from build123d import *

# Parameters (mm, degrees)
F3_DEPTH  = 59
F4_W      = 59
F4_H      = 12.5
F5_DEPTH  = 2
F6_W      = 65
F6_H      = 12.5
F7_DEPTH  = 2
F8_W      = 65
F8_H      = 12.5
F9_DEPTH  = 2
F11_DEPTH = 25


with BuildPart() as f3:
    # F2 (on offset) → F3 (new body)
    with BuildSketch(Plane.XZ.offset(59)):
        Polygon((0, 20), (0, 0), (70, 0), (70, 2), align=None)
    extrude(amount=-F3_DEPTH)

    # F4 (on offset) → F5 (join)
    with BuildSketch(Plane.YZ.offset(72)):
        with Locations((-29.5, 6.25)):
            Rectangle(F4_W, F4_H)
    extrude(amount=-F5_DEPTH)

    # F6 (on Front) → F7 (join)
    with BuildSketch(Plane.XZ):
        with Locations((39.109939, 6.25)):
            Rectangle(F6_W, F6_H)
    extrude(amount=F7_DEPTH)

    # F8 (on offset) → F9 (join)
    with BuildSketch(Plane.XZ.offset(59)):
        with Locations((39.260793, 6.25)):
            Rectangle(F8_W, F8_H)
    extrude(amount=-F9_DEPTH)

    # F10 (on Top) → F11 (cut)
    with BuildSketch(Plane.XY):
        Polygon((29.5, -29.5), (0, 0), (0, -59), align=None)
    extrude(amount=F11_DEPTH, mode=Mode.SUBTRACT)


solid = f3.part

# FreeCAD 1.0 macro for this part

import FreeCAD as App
import Part
import Sketcher

doc = App.newDocument("Part")
body = doc.addObject("PartDesign::Body", "Body")

# Sketch on XZ plane
sketch1 = body.newObject("Sketcher::SketchObject", "Sketch")
sketch1.AttachmentSupport = (doc.getObject("XZ_Plane"), [""])
sketch1.MapMode = "FlatFace"
sketch1.AttachmentOffset = App.Placement(App.Vector(0, 0, 59), App.Rotation())
sketch1.addGeometry([
    Part.LineSegment(App.Vector(0, 20, 0), App.Vector(0, 0, 0)),
    Part.LineSegment(App.Vector(0, 0, 0), App.Vector(70, 0, 0)),
    Part.LineSegment(App.Vector(70, 0, 0), App.Vector(70, 2, 0)),
    Part.LineSegment(App.Vector(70, 2, 0), App.Vector(0, 20, 0)),
], False)
sketch1.addConstraint([
    Sketcher.Constraint("Coincident", 0, 2, 1, 1),
    Sketcher.Constraint("Coincident", 1, 2, 2, 1),
    Sketcher.Constraint("Coincident", 2, 2, 3, 1),
    Sketcher.Constraint("Coincident", 3, 2, 0, 1),
    Sketcher.Constraint("Vertical", 0),
    Sketcher.Constraint("Horizontal", 1),
    Sketcher.Constraint("Vertical", 2),
    Sketcher.Constraint("Coincident", 0, 2, -1, 1),
    Sketcher.Constraint("DistanceX", 1, 1, 1, 2, 70.0),
    Sketcher.Constraint("DistanceY", 0, 2, 0, 1, 20.0),
    Sketcher.Constraint("DistanceY", 2, 1, 2, 2, 2.0),
])
pad1 = body.newObject("PartDesign::Pad", "Pad")
pad1.Profile = sketch1
pad1.Length = 59
pad1.Reversed = True

# Sketch on YZ plane
sketch2 = body.newObject("Sketcher::SketchObject", "Sketch001")
sketch2.AttachmentSupport = (doc.getObject("YZ_Plane"), [""])
sketch2.MapMode = "FlatFace"
sketch2.AttachmentOffset = App.Placement(App.Vector(0, 0, 72), App.Rotation())
sketch2.addGeometry([
    Part.LineSegment(App.Vector(-59, 12, 0), App.Vector(-59, 0, 0)),
    Part.LineSegment(App.Vector(-59, 0, 0), App.Vector(0, 0, 0)),
    Part.LineSegment(App.Vector(0, 0, 0), App.Vector(0, 12, 0)),
    Part.LineSegment(App.Vector(0, 12, 0), App.Vector(-59, 12, 0)),
], False)
sketch2.addConstraint([
    Sketcher.Constraint("Coincident", 0, 2, 1, 1),
    Sketcher.Constraint("Coincident", 1, 2, 2, 1),
    Sketcher.Constraint("Coincident", 2, 2, 3, 1),
    Sketcher.Constraint("Coincident", 3, 2, 0, 1),
    Sketcher.Constraint("Vertical", 0),
    Sketcher.Constraint("Horizontal", 1),
    Sketcher.Constraint("Vertical", 2),
    Sketcher.Constraint("Horizontal", 3),
    Sketcher.Constraint("Coincident", 1, 2, -1, 1),
    Sketcher.Constraint("DistanceX", 1, 1, 1, 2, 59.0),
    Sketcher.Constraint("DistanceY", 0, 2, 0, 1, 12.5),
])
pad2 = body.newObject("PartDesign::Pad", "Pad001")
pad2.Profile = sketch2
pad2.Length = 2
pad2.Reversed = True

# Sketch on XZ plane
sketch3 = body.newObject("Sketcher::SketchObject", "Sketch002")
sketch3.AttachmentSupport = (doc.getObject("XZ_Plane"), [""])
sketch3.MapMode = "FlatFace"
sketch3.addGeometry([
    Part.LineSegment(App.Vector(7, 12, 0), App.Vector(7, 0, 0)),
    Part.LineSegment(App.Vector(7, 0, 0), App.Vector(72, 0, 0)),
    Part.LineSegment(App.Vector(72, 0, 0), App.Vector(72, 12, 0)),
    Part.LineSegment(App.Vector(72, 12, 0), App.Vector(7, 12, 0)),
], False)
sketch3.addConstraint([
    Sketcher.Constraint("Coincident", 0, 2, 1, 1),
    Sketcher.Constraint("Coincident", 1, 2, 2, 1),
    Sketcher.Constraint("Coincident", 2, 2, 3, 1),
    Sketcher.Constraint("Coincident", 3, 2, 0, 1),
    Sketcher.Constraint("Vertical", 0),
    Sketcher.Constraint("Horizontal", 1),
    Sketcher.Constraint("Vertical", 2),
    Sketcher.Constraint("Horizontal", 3),
    Sketcher.Constraint("PointOnObject", 0, 2, -1),
    Sketcher.Constraint("DistanceX", 1, 1, 1, 2, 65.0),
    Sketcher.Constraint("DistanceY", 0, 2, 0, 1, 12.5),
    Sketcher.Constraint("DistanceX", -1, 1, 0, 2, 6.609939),
])
pad3 = body.newObject("PartDesign::Pad", "Pad002")
pad3.Profile = sketch3
pad3.Length = 2

# Sketch on XZ plane
sketch4 = body.newObject("Sketcher::SketchObject", "Sketch003")
sketch4.AttachmentSupport = (doc.getObject("XZ_Plane"), [""])
sketch4.MapMode = "FlatFace"
sketch4.AttachmentOffset = App.Placement(App.Vector(0, 0, 59), App.Rotation())
sketch4.addGeometry([
    Part.LineSegment(App.Vector(7, 12, 0), App.Vector(7, 0, 0)),
    Part.LineSegment(App.Vector(7, 0, 0), App.Vector(72, 0, 0)),
    Part.LineSegment(App.Vector(72, 0, 0), App.Vector(72, 12, 0)),
    Part.LineSegment(App.Vector(72, 12, 0), App.Vector(7, 12, 0)),
], False)
sketch4.addConstraint([
    Sketcher.Constraint("Coincident", 0, 2, 1, 1),
    Sketcher.Constraint("Coincident", 1, 2, 2, 1),
    Sketcher.Constraint("Coincident", 2, 2, 3, 1),
    Sketcher.Constraint("Coincident", 3, 2, 0, 1),
    Sketcher.Constraint("Vertical", 0),
    Sketcher.Constraint("Horizontal", 1),
    Sketcher.Constraint("Vertical", 2),
    Sketcher.Constraint("Horizontal", 3),
    Sketcher.Constraint("PointOnObject", 0, 2, -1),
    Sketcher.Constraint("DistanceX", 1, 1, 1, 2, 65.0),
    Sketcher.Constraint("DistanceY", 0, 2, 0, 1, 12.5),
    Sketcher.Constraint("DistanceX", -1, 1, 0, 2, 6.760793),
])
pad4 = body.newObject("PartDesign::Pad", "Pad003")
pad4.Profile = sketch4
pad4.Length = 2
pad4.Reversed = True

# Sketch on XY plane
sketch5 = body.newObject("Sketcher::SketchObject", "Sketch004")
sketch5.AttachmentSupport = (doc.getObject("XY_Plane"), [""])
sketch5.MapMode = "FlatFace"
sketch5.addGeometry([
    Part.LineSegment(App.Vector(30, -30, 0), App.Vector(0, 0, 0)),
    Part.LineSegment(App.Vector(0, 0, 0), App.Vector(0, -59, 0)),
    Part.LineSegment(App.Vector(0, -59, 0), App.Vector(30, -30, 0)),
], False)
sketch5.addConstraint([
    Sketcher.Constraint("Coincident", 0, 2, 1, 1),
    Sketcher.Constraint("Coincident", 1, 2, 2, 1),
    Sketcher.Constraint("Coincident", 2, 2, 0, 1),
    Sketcher.Constraint("Vertical", 1),
    Sketcher.Constraint("Coincident", 0, 2, -1, 1),
    Sketcher.Constraint("Perpendicular", 0, 2),
    Sketcher.Constraint("Equal", 0, 2),
    Sketcher.Constraint("DistanceY", 1, 2, 1, 1, 59.0),
])
pocket1 = body.newObject("PartDesign::Pocket", "Pocket")
pocket1.Profile = sketch5
pocket1.Length = 25
pocket1.Reversed = True

doc.recompute()
